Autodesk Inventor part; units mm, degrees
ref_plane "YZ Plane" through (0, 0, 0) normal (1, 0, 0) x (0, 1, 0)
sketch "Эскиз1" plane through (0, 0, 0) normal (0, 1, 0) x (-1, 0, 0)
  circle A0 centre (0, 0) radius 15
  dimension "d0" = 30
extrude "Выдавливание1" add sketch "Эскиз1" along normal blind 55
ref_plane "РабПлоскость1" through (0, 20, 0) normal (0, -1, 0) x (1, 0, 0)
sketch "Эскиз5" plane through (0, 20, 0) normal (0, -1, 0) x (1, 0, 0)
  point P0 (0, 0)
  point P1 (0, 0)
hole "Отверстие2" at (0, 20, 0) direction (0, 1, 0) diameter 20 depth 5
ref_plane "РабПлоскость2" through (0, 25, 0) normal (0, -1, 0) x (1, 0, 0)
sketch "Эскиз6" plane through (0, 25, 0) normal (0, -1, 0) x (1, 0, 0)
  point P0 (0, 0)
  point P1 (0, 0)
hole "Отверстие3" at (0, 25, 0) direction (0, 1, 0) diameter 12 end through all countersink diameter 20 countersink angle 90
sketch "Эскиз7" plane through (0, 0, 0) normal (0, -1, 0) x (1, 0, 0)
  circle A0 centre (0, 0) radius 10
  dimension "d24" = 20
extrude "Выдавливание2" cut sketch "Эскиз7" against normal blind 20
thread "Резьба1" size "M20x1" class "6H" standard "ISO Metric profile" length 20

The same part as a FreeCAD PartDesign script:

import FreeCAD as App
import Part
import Sketcher

V = App.Vector
Q = App.Units.Quantity

doc = App.newDocument("Part")
body = doc.addObject("PartDesign::Body", "Body")

# Sketch on XZ plane
sketch1 = body.newObject("Sketcher::SketchObject", "Sketch")
sketch1.AttachmentSupport = (doc.getObject("XZ_Plane"), [""])
sketch1.MapMode = "FlatFace"
sketch1.addGeometry(Part.Circle(V(0, 0, 0), V(0, 0, 1), 15), False)
sketch1.addConstraint([
    Sketcher.Constraint("Coincident", 0, 3, -1, 1),
    Sketcher.Constraint("Diameter", 0, Q("30 mm")),
])
pad1 = body.newObject("PartDesign::Pad", "Pad")
pad1.Profile = sketch1
pad1.Length = 55
pad1.Reversed = True

# Sketch on XZ plane
sketch2 = body.newObject("Sketcher::SketchObject", "Sketch001")
sketch2.AttachmentSupport = (doc.getObject("XZ_Plane"), [""])
sketch2.MapMode = "FlatFace"
sketch2.AttachmentOffset = App.Placement(V(0, 0, -20), App.Rotation())
sketch2.addGeometry(Part.Circle(V(0, 0, 0), V(0, 0, 1), 10), False)
sketch2.addConstraint([
    Sketcher.Constraint("Coincident", 0, 3, -1, 1),
    Sketcher.Constraint("Diameter", 0, Q("20 mm")),
])
doc.recompute()
hole = body.newObject("PartDesign::Hole", "Hole")
hole.Profile = sketch2
hole.ThreadType = "None"
hole.Diameter = 20
hole.DepthType = "Dimension"
hole.Depth = 5
hole.DrillPoint = "Flat"

# Sketch on XZ plane
sketch3 = body.newObject("Sketcher::SketchObject", "Sketch002")
sketch3.AttachmentSupport = (doc.getObject("XZ_Plane"), [""])
sketch3.MapMode = "FlatFace"
sketch3.AttachmentOffset = App.Placement(V(0, 0, -25), App.Rotation())
sketch3.addGeometry(Part.Circle(V(0, 0, 0), V(0, 0, 1), 6), False)
sketch3.addConstraint([
    Sketcher.Constraint("Coincident", 0, 3, -1, 1),
    Sketcher.Constraint("Diameter", 0, Q("12 mm")),
])
doc.recompute()
hole2 = body.newObject("PartDesign::Hole", "Hole001")
hole2.Profile = sketch3
hole2.ThreadType = "None"
hole2.Diameter = 12
hole2.DepthType = "ThroughAll"
hole2.HoleCutType = "Countersink"
hole2.HoleCutDiameter = 20
hole2.HoleCutCountersinkAngle = 90

# Sketch on XZ plane
sketch4 = body.newObject("Sketcher::SketchObject", "Sketch003")
sketch4.AttachmentSupport = (doc.getObject("XZ_Plane"), [""])
sketch4.MapMode = "FlatFace"
sketch4.addGeometry(Part.Circle(V(0, 0, 0), V(0, 0, 1), 10), False)
sketch4.addConstraint([
    Sketcher.Constraint("Coincident", 0, 3, -1, 1),
    Sketcher.Constraint("Diameter", 0, Q("20 mm")),
])
pocket1 = body.newObject("PartDesign::Pocket", "Pocket")
pocket1.Profile = sketch4
pocket1.Length = 20

doc.recompute()
